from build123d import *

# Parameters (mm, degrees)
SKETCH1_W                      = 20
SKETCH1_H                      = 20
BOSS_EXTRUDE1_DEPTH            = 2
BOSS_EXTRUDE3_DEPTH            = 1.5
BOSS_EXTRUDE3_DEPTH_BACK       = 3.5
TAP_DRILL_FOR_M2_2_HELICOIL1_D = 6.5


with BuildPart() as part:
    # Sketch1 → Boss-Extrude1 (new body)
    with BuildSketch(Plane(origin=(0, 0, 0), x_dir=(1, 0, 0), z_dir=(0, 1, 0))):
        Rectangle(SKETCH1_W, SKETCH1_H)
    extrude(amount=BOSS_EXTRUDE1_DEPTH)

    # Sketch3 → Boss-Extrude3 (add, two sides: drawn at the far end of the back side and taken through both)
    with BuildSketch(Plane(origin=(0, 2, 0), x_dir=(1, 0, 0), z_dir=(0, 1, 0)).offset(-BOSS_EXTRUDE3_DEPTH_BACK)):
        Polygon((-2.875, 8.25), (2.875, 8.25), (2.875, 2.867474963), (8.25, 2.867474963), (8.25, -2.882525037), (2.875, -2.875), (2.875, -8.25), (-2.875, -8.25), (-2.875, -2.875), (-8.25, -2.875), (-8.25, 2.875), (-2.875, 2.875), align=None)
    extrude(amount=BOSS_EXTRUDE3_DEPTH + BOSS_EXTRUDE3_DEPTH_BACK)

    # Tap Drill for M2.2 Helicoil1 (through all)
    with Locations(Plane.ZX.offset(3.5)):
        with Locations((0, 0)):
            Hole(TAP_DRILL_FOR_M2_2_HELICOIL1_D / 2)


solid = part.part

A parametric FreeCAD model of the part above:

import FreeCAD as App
import Part
import Sketcher

doc = App.newDocument("Part")
body = doc.addObject("PartDesign::Body", "Body")

# Sketch on XZ plane
sketch1 = doc.addObject("Sketcher::SketchObject", "Sketch")
body.addObject(sketch1)
sketch1.AttachmentSupport = (doc.XZ_Plane, [""])
sketch1.MapMode = "FlatFace"
sketch1.addGeometry([
    Part.LineSegment(App.Vector(-10, -10, 0), App.Vector(-10, 10, 0)),
    Part.LineSegment(App.Vector(-10, 10, 0), App.Vector(10, 10, 0)),
    Part.LineSegment(App.Vector(10, 10, 0), App.Vector(10, -10, 0)),
    Part.LineSegment(App.Vector(10, -10, 0), App.Vector(-10, -10, 0)),
], False)
sketch1.addConstraint([
    Sketcher.Constraint("Coincident", 0, 2, 1, 1),
    Sketcher.Constraint("Coincident", 1, 2, 2, 1),
    Sketcher.Constraint("Coincident", 2, 2, 3, 1),
    Sketcher.Constraint("Coincident", 3, 2, 0, 1),
    Sketcher.Constraint("Vertical", 0),
    Sketcher.Constraint("Horizontal", 1),
    Sketcher.Constraint("Vertical", 2),
    Sketcher.Constraint("Horizontal", 3),
    Sketcher.Constraint("Symmetric", 0, 2, 2, 2, -1, 1),
    Sketcher.Constraint("Equal", 3, 0),
    Sketcher.Constraint("DistanceX", 1, 1, 1, 2, 20.0),
])
pad1 = doc.addObject("PartDesign::Pad", "Pad")
body.addObject(pad1)
pad1.Profile = sketch1
pad1.Length = 2
pad1.Reversed = True

# Sketch on XZ plane
sketch2 = doc.addObject("Sketcher::SketchObject", "Sketch001")
body.addObject(sketch2)
sketch2.AttachmentSupport = (doc.XZ_Plane, [""])
sketch2.MapMode = "FlatFace"
sketch2.AttachmentOffset = App.Placement(App.Vector(0, 0, -2), App.Rotation())
sketch2.addGeometry([
    Part.LineSegment(App.Vector(3, -8, 0), App.Vector(-3, -8, 0)),  # 0
    Part.LineSegment(App.Vector(-3, -8, 0), App.Vector(-3, -3, 0)),  # 1
    Part.LineSegment(App.Vector(-3, -3, 0), App.Vector(-8, -3, 0)),  # 2
    Part.LineSegment(App.Vector(-8, -3, 0), App.Vector(-8, 3, 0)),  # 3
    Part.LineSegment(App.Vector(-8, 3, 0), App.Vector(-3, 3, 0)),  # 4
    Part.LineSegment(App.Vector(-3, 3, 0), App.Vector(-3, 8, 0)),  # 5
    Part.LineSegment(App.Vector(-3, 8, 0), App.Vector(3, 8, 0)),  # 6
    Part.LineSegment(App.Vector(3, 8, 0), App.Vector(3, 3, 0)),  # 7
    Part.LineSegment(App.Vector(3, 3, 0), App.Vector(8, 3, 0)),  # 8
    Part.LineSegment(App.Vector(8, 3, 0), App.Vector(8, -3, 0)),  # 9
    Part.LineSegment(App.Vector(8, -3, 0), App.Vector(3, -3, 0)),  # 10
    Part.LineSegment(App.Vector(3, -3, 0), App.Vector(3, -8, 0)),  # 11
], False)
sketch2.addConstraint([
    Sketcher.Constraint("Coincident", 0, 2, 1, 1),
    Sketcher.Constraint("Coincident", 1, 2, 2, 1),
    Sketcher.Constraint("Coincident", 2, 2, 3, 1),
    Sketcher.Constraint("Coincident", 3, 2, 4, 1),
    Sketcher.Constraint("Coincident", 4, 2, 5, 1),
    Sketcher.Constraint("Coincident", 5, 2, 6, 1),
    Sketcher.Constraint("Coincident", 6, 2, 7, 1),
    Sketcher.Constraint("Coincident", 7, 2, 8, 1),
    Sketcher.Constraint("Coincident", 8, 2, 9, 1),
    Sketcher.Constraint("Coincident", 9, 2, 10, 1),
    Sketcher.Constraint("Coincident", 10, 2, 11, 1),
    Sketcher.Constraint("Coincident", 11, 2, 0, 1),
    Sketcher.Constraint("Horizontal", 0),
    Sketcher.Constraint("Vertical", 1),
    Sketcher.Constraint("Horizontal", 2),
    Sketcher.Constraint("Vertical", 3),
    Sketcher.Constraint("Horizontal", 4),
    Sketcher.Constraint("Vertical", 5),
    Sketcher.Constraint("Horizontal", 6),
    Sketcher.Constraint("Vertical", 7),
    Sketcher.Constraint("Vertical", 9),
    Sketcher.Constraint("Horizontal", 10),
    Sketcher.Constraint("Vertical", 11),
    Sketcher.Constraint("Symmetric", 0, 2, 6, 2, -1, 1),
    Sketcher.Constraint("Symmetric", 4, 2, 7, 2, -2),
    Sketcher.Constraint("Vertical", 7, 2, 10, 2),
    Sketcher.Constraint("Equal", 4, 10),
    Sketcher.Constraint("Equal", 10, 1),
    Sketcher.Constraint("Equal", 6, 3),
    Sketcher.Constraint("Equal", 1, 5),
    Sketcher.Constraint("Equal", 3, 9),
    Sketcher.Constraint("DistanceX", 0, 2, 0, 1, 5.75),
    Sketcher.Constraint("DistanceY", 0, 2, 5, 2, 16.5),
    Sketcher.Constraint("DistanceY", 11, 2, 11, 1, 5.382525),
])
pad2 = doc.addObject("PartDesign::Pad", "Pad001")
body.addObject(pad2)
pad2.Profile = sketch2
pad2.Type = "TwoLengths"
pad2.Length = 1.5
pad2.Length2 = 3.5
pad2.Reversed = True

# Sketch on XZ plane
sketch3 = doc.addObject("Sketcher::SketchObject", "Sketch002")
body.addObject(sketch3)
sketch3.AttachmentSupport = (doc.XZ_Plane, [""])
sketch3.MapMode = "FlatFace"
sketch3.AttachmentOffset = App.Placement(App.Vector(0, 0, -3.5), App.Rotation())
sketch3.addGeometry(Part.Circle(App.Vector(0, 0, 0), App.Vector(0, 0, 1), 3.2), False)
sketch3.addConstraint([
    Sketcher.Constraint("Coincident", 0, 3, -1, 1),
    Sketcher.Constraint("Diameter", 0, 6.5),
])
doc.recompute()
hole = doc.addObject("PartDesign::Hole", "Hole")
body.addObject(hole)
hole.Profile = sketch3
hole.ThreadType = "None"
hole.Diameter = 6.5
hole.DepthType = "ThroughAll"
hole.Reversed = True

doc.recompute()
